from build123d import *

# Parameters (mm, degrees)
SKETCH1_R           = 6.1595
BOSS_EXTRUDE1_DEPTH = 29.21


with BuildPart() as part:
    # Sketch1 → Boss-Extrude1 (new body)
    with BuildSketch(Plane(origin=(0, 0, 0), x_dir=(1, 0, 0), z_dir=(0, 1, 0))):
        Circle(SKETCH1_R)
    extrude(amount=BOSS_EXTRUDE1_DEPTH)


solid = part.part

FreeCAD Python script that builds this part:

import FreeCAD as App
import Part
import Sketcher

V = App.Vector
Q = App.Units.Quantity

doc = App.newDocument("Part")
body = doc.addObject("PartDesign::Body", "Body")

sketch1 = body.newObject("Sketcher::SketchObject", "Sketch")
sketch1.AttachmentSupport = (doc.getObject("XZ_Plane"), [""])
sketch1.MapMode = "FlatFace"
sketch1.addGeometry(Part.Circle(V(0, 0, 0), V(0, 0, 1), 6), False)
sketch1.addConstraint([
    Sketcher.Constraint("Coincident", 0, 3, -1, 1),
    Sketcher.Constraint("Diameter", 0, Q("0.485 in")),
])
pad1 = body.newObject("PartDesign::Pad", "Pad")
pad1.Profile = sketch1
pad1.Length = Q("1.15 in")
pad1.Reversed = True

doc.recompute()
